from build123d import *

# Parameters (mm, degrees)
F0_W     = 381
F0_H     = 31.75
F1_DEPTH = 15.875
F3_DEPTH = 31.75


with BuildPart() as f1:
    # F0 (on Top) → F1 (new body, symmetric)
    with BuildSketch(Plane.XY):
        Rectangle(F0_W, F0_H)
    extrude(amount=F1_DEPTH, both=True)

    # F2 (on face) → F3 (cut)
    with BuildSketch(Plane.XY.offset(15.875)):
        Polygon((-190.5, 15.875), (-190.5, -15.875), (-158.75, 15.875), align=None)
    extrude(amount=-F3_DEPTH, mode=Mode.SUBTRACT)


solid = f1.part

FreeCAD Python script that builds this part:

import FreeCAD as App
import Part
import Sketcher
Q = App.Units.Quantity


def add_polygon(sketch, points):
    """Adds a closed chain of lines whose ends are joined by coincident constraints."""
    first, n = sketch.GeometryCount, len(points)
    for a, b in zip(points, points[1:] + points[:1]):
        sketch.addGeometry(Part.LineSegment(App.Vector(*a, 0), App.Vector(*b, 0)), False)
    for i in range(n):
        sketch.addConstraint(Sketcher.Constraint("Coincident", first + i, 2, first + (i + 1) % n, 1))

doc = App.newDocument("Part")
body = doc.addObject("PartDesign::Body", "Body")

# Sketch on XY plane
sketch1 = body.newObject("Sketcher::SketchObject", "Sketch")
sketch1.AttachmentSupport = (doc.getObject("XY_Plane"), [""])
sketch1.MapMode = "FlatFace"
add_polygon(sketch1, [(-190, 16), (-190, -16), (190, -16), (190, 16)])  # lines 0-3
sketch1.addConstraint([
    Sketcher.Constraint("Vertical", 0),
    Sketcher.Constraint("Horizontal", 1),
    Sketcher.Constraint("Vertical", 2),
    Sketcher.Constraint("Horizontal", 3),
    Sketcher.Constraint("Symmetric", 0, 2, 2, 2, -1, 1),
    Sketcher.Constraint("DistanceX", 1, 1, 1, 2, Q("15 in")),
    Sketcher.Constraint("DistanceY", 0, 2, 0, 1, Q("1.25 in")),
])
pad1 = body.newObject("PartDesign::Pad", "Pad")
pad1.Profile = sketch1
pad1.Length = Q("1.25 in")
pad1.Midplane = True

# Sketch on XY plane
sketch2 = body.newObject("Sketcher::SketchObject", "Sketch001")
sketch2.AttachmentSupport = (doc.getObject("XY_Plane"), [""])
sketch2.MapMode = "FlatFace"
sketch2.AttachmentOffset = App.Placement(App.Vector(0, 0, 0.625 * 25.4), App.Rotation())
add_polygon(sketch2, [(-190, 16), (-190, -16), (-159, 16)])  # lines 0-2
sketch2.addConstraint([
    Sketcher.Constraint("Vertical", 0),
    Sketcher.Constraint("Horizontal", 2),
    Sketcher.Constraint("Equal", 2, 0),
    Sketcher.Constraint("DistanceX", 2, 2, 2, 1, Q("1.25 in")),
    Sketcher.Constraint("DistanceX", 0, 2, -1, 1, Q("7.5 in")),
    Sketcher.Constraint("DistanceY", 0, 2, -1, 1, Q("0.625 in")),
])
pocket1 = body.newObject("PartDesign::Pocket", "Pocket")
pocket1.Profile = sketch2
pocket1.Length = Q("1.25 in")

doc.recompute()
